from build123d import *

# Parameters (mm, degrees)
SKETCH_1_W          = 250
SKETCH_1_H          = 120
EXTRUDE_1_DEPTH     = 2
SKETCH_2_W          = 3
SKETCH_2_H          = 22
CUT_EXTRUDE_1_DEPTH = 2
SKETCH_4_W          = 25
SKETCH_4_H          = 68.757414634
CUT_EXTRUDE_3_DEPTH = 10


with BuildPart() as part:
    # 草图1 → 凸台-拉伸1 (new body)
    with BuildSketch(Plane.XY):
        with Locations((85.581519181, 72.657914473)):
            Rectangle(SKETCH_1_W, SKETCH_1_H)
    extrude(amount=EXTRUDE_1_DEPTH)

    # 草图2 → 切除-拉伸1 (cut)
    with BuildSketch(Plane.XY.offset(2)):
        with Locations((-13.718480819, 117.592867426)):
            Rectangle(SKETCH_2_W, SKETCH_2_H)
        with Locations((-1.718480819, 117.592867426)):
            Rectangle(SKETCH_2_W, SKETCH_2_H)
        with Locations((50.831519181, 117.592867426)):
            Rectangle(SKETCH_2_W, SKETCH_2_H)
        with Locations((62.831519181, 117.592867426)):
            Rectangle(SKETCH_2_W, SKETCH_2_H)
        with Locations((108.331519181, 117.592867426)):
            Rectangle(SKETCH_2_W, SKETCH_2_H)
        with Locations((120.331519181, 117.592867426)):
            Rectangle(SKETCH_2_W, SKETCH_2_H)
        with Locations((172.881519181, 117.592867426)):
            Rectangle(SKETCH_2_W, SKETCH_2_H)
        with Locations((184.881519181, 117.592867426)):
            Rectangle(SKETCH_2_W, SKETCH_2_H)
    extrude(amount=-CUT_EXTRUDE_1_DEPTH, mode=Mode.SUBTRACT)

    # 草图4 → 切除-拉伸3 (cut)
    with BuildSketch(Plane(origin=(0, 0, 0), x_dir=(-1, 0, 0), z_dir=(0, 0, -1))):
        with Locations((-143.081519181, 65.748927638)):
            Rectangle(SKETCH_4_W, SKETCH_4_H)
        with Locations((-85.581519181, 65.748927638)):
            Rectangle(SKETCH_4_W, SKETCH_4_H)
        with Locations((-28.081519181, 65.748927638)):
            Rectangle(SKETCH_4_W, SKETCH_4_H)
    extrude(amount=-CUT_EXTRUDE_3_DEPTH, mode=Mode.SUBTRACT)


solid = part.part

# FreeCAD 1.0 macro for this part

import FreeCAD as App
import Part
import Sketcher

V = App.Vector

doc = App.newDocument("Part")
params = doc.addObject("Spreadsheet::Sheet", "Params")
for row, (alias, value) in enumerate([
    ("sketch1_width", "250 mm"),
    ("sketch1_height", "120 mm"),
    ("pad1_length", "2 mm"),
    ("sketch2_width", "3 mm"),
    ("sketch2_height", "22 mm"),
    ("pocket1_length", "2 mm"),
    ("sketch3_width", "25 mm"),
    ("pocket2_length", "10 mm"),
], start=1):
    params.set(f"A{row}", alias)
    params.set(f"B{row}", "=" + value)
    params.setAlias(f"B{row}", alias)

body = doc.addObject("PartDesign::Body", "Body")

# Sketch on XY plane
sketch1 = body.newObject("Sketcher::SketchObject", "Sketch")
sketch1.AttachmentSupport = (doc.getObject("XY_Plane"), [""])
sketch1.MapMode = "FlatFace"
sketch1.addGeometry([
    Part.LineSegment(V(-39, 133, 0), V(-39, 13, 0)),
    Part.LineSegment(V(-39, 13, 0), V(211, 13, 0)),
    Part.LineSegment(V(211, 13, 0), V(211, 133, 0)),
    Part.LineSegment(V(211, 133, 0), V(-39, 133, 0)),
], False)
sketch1.addConstraint([
    Sketcher.Constraint("Coincident", 0, 2, 1, 1),
    Sketcher.Constraint("Coincident", 1, 2, 2, 1),
    Sketcher.Constraint("Coincident", 2, 2, 3, 1),
    Sketcher.Constraint("Coincident", 3, 2, 0, 1),
    Sketcher.Constraint("Vertical", 0),
    Sketcher.Constraint("Horizontal", 1),
    Sketcher.Constraint("Vertical", 2),
    Sketcher.Constraint("Horizontal", 3),
    Sketcher.Constraint("DistanceX", 1, 1, 1, 2, 250.0),
    Sketcher.Constraint("DistanceY", 0, 2, 0, 1, 120.0),
    Sketcher.Constraint("DistanceX", 0, 2, -1, 1, 39.418481),
    Sketcher.Constraint("DistanceY", -1, 1, 0, 2, 12.657914),
])
sketch1.setExpression("Constraints[8]", "Params.sketch1_width")
sketch1.setExpression("Constraints[9]", "Params.sketch1_height")
pad1 = body.newObject("PartDesign::Pad", "Pad")
pad1.Profile = sketch1
pad1.setExpression("Length", "Params.pad1_length")

# Sketch on XY plane
sketch2 = body.newObject("Sketcher::SketchObject", "Sketch001")
sketch2.AttachmentSupport = (doc.getObject("XY_Plane"), [""])
sketch2.MapMode = "FlatFace"
sketch2.AttachmentOffset = App.Placement(V(0, 0, 2), App.Rotation())
sketch2.addGeometry([
    Part.LineSegment(V(-15.2, 128.6, 0), V(-15.2, 106.6, 0)),  # 0
    Part.LineSegment(V(-15.2, 106.6, 0), V(-12.2, 106.6, 0)),  # 1
    Part.LineSegment(V(-12.2, 106.6, 0), V(-12.2, 128.6, 0)),  # 2
    Part.LineSegment(V(-12.2, 128.6, 0), V(-15.2, 128.6, 0)),  # 3
    Part.LineSegment(V(-3.2, 128.6, 0), V(-3.2, 106.6, 0)),  # 4
    Part.LineSegment(V(-3.2, 106.6, 0), V(-0.2, 106.6, 0)),  # 5
    Part.LineSegment(V(-0.2, 106.6, 0), V(-0.2, 128.6, 0)),  # 6
    Part.LineSegment(V(-0.2, 128.6, 0), V(-3.2, 128.6, 0)),  # 7
    Part.LineSegment(V(49.3, 128.6, 0), V(49.3, 106.6, 0)),  # 8
    Part.LineSegment(V(49.3, 106.6, 0), V(52.3, 106.6, 0)),  # 9
    Part.LineSegment(V(52.3, 106.6, 0), V(52.3, 128.6, 0)),  # 10
    Part.LineSegment(V(52.3, 128.6, 0), V(49.3, 128.6, 0)),  # 11
    Part.LineSegment(V(61.3, 128.6, 0), V(61.3, 106.6, 0)),  # 12
    Part.LineSegment(V(61.3, 106.6, 0), V(64.3, 106.6, 0)),  # 13
    Part.LineSegment(V(64.3, 106.6, 0), V(64.3, 128.6, 0)),  # 14
    Part.LineSegment(V(64.3, 128.6, 0), V(61.3, 128.6, 0)),  # 15
    Part.LineSegment(V(106.8, 128.6, 0), V(106.8, 106.6, 0)),  # 16
    Part.LineSegment(V(106.8, 106.6, 0), V(109.8, 106.6, 0)),  # 17
    Part.LineSegment(V(109.8, 106.6, 0), V(109.8, 128.6, 0)),  # 18
    Part.LineSegment(V(109.8, 128.6, 0), V(106.8, 128.6, 0)),  # 19
    Part.LineSegment(V(118.8, 128.6, 0), V(118.8, 106.6, 0)),  # 20
    Part.LineSegment(V(118.8, 106.6, 0), V(121.8, 106.6, 0)),  # 21
    Part.LineSegment(V(121.8, 106.6, 0), V(121.8, 128.6, 0)),  # 22
    Part.LineSegment(V(121.8, 128.6, 0), V(118.8, 128.6, 0)),  # 23
    Part.LineSegment(V(171.4, 128.6, 0), V(171.4, 106.6, 0)),  # 24
    Part.LineSegment(V(171.4, 106.6, 0), V(174.4, 106.6, 0)),  # 25
    Part.LineSegment(V(174.4, 106.6, 0), V(174.4, 128.6, 0)),  # 26
    Part.LineSegment(V(174.4, 128.6, 0), V(171.4, 128.6, 0)),  # 27
    Part.LineSegment(V(183.4, 128.6, 0), V(183.4, 106.6, 0)),  # 28
    Part.LineSegment(V(183.4, 106.6, 0), V(186.4, 106.6, 0)),  # 29
    Part.LineSegment(V(186.4, 106.6, 0), V(186.4, 128.6, 0)),  # 30
    Part.LineSegment(V(186.4, 128.6, 0), V(183.4, 128.6, 0)),  # 31
], False)
sketch2.addConstraint([
    Sketcher.Constraint("Coincident", 0, 2, 1, 1),
    Sketcher.Constraint("Coincident", 1, 2, 2, 1),
    Sketcher.Constraint("Coincident", 2, 2, 3, 1),
    Sketcher.Constraint("Coincident", 3, 2, 0, 1),
    Sketcher.Constraint("Coincident", 4, 2, 5, 1),
    Sketcher.Constraint("Coincident", 5, 2, 6, 1),
    Sketcher.Constraint("Coincident", 6, 2, 7, 1),
    Sketcher.Constraint("Coincident", 7, 2, 4, 1),
    Sketcher.Constraint("Coincident", 8, 2, 9, 1),
    Sketcher.Constraint("Coincident", 9, 2, 10, 1),
    Sketcher.Constraint("Coincident", 10, 2, 11, 1),
    Sketcher.Constraint("Coincident", 11, 2, 8, 1),
    Sketcher.Constraint("Coincident", 12, 2, 13, 1),
    Sketcher.Constraint("Coincident", 13, 2, 14, 1),
    Sketcher.Constraint("Coincident", 14, 2, 15, 1),
    Sketcher.Constraint("Coincident", 15, 2, 12, 1),
    Sketcher.Constraint("Coincident", 16, 2, 17, 1),
    Sketcher.Constraint("Coincident", 17, 2, 18, 1),
    Sketcher.Constraint("Coincident", 18, 2, 19, 1),
    Sketcher.Constraint("Coincident", 19, 2, 16, 1),
    Sketcher.Constraint("Coincident", 20, 2, 21, 1),
    Sketcher.Constraint("Coincident", 21, 2, 22, 1),
    Sketcher.Constraint("Coincident", 22, 2, 23, 1),
    Sketcher.Constraint("Coincident", 23, 2, 20, 1),
    Sketcher.Constraint("Coincident", 24, 2, 25, 1),
    Sketcher.Constraint("Coincident", 25, 2, 26, 1),
    Sketcher.Constraint("Coincident", 26, 2, 27, 1),
    Sketcher.Constraint("Coincident", 27, 2, 24, 1),
    Sketcher.Constraint("Coincident", 28, 2, 29, 1),
    Sketcher.Constraint("Coincident", 29, 2, 30, 1),
    Sketcher.Constraint("Coincident", 30, 2, 31, 1),
    Sketcher.Constraint("Coincident", 31, 2, 28, 1),
    Sketcher.Constraint("Vertical", 0),
    Sketcher.Constraint("Horizontal", 1),
    Sketcher.Constraint("Vertical", 2),
    Sketcher.Constraint("Horizontal", 3),
    Sketcher.Constraint("Vertical", 4),
    Sketcher.Constraint("Horizontal", 5),
    Sketcher.Constraint("Vertical", 6),
    Sketcher.Constraint("Horizontal", 7),
    Sketcher.Constraint("Vertical", 8),
    Sketcher.Constraint("Horizontal", 9),
    Sketcher.Constraint("Vertical", 10),
    Sketcher.Constraint("Horizontal", 11),
    Sketcher.Constraint("Vertical", 12),
    Sketcher.Constraint("Horizontal", 13),
    Sketcher.Constraint("Vertical", 14),
    Sketcher.Constraint("Horizontal", 15),
    Sketcher.Constraint("Vertical", 16),
    Sketcher.Constraint("Horizontal", 17),
    Sketcher.Constraint("Vertical", 18),
    Sketcher.Constraint("Horizontal", 19),
    Sketcher.Constraint("Vertical", 20),
    Sketcher.Constraint("Horizontal", 21),
    Sketcher.Constraint("Vertical", 22),
    Sketcher.Constraint("Horizontal", 23),
    Sketcher.Constraint("Vertical", 24),
    Sketcher.Constraint("Horizontal", 25),
    Sketcher.Constraint("Vertical", 26),
    Sketcher.Constraint("Horizontal", 27),
    Sketcher.Constraint("Vertical", 28),
    Sketcher.Constraint("Horizontal", 29),
    Sketcher.Constraint("Vertical", 30),
    Sketcher.Constraint("Horizontal", 31),
    Sketcher.Constraint("Horizontal", 1, 2, 4, 2),
    Sketcher.Constraint("Horizontal", 3, 2, 6, 2),
    Sketcher.Constraint("Horizontal", 5, 2, 8, 2),
    Sketcher.Constraint("Horizontal", 7, 2, 10, 2),
    Sketcher.Constraint("Horizontal", 9, 2, 12, 2),
    Sketcher.Constraint("Horizontal", 11, 2, 14, 2),
    Sketcher.Constraint("Horizontal", 13, 2, 16, 2),
    Sketcher.Constraint("Horizontal", 15, 2, 18, 2),
    Sketcher.Constraint("Horizontal", 17, 2, 20, 2),
    Sketcher.Constraint("Horizontal", 19, 2, 22, 2),
    Sketcher.Constraint("Horizontal", 21, 2, 24, 2),
    Sketcher.Constraint("Horizontal", 23, 2, 26, 2),
    Sketcher.Constraint("Horizontal", 25, 2, 28, 2),
    Sketcher.Constraint("Horizontal", 27, 2, 30, 2),
    Sketcher.Constraint("Equal", 3, 5),
    Sketcher.Constraint("Equal", 7, 9),
    Sketcher.Constraint("Equal", 11, 13),
    Sketcher.Constraint("Equal", 15, 17),
    Sketcher.Constraint("Equal", 19, 21),
    Sketcher.Constraint("Equal", 23, 25),
    Sketcher.Constraint("Equal", 27, 29),
    Sketcher.Constraint("DistanceX", 1, 1, 1, 2, 3.0),
    Sketcher.Constraint("DistanceY", 0, 2, 0, 1, 22.0),
    Sketcher.Constraint("DistanceX", 1, 2, 4, 2, 9.0),
    Sketcher.Constraint("DistanceX", 9, 2, 12, 2, 9.0),
    Sketcher.Constraint("DistanceX", 17, 2, 20, 2, 9.0),
    Sketcher.Constraint("DistanceX", 25, 2, 28, 2, 9.0),
    Sketcher.Constraint("DistanceX", 13, 2, 16, 2, 42.5),
    Sketcher.Constraint("DistanceX", 5, 2, 8, 2, 49.55),
    Sketcher.Constraint("DistanceX", 21, 2, 24, 2, 49.55),
    Sketcher.Constraint("DistanceX", 0, 2, -1, 1, 15.218481),
    Sketcher.Constraint("DistanceY", -1, 1, 0, 2, 106.592867),
])
sketch2.setExpression("Constraints[85]", "Params.sketch2_width")
sketch2.setExpression("Constraints[86]", "Params.sketch2_height")
pocket1 = body.newObject("PartDesign::Pocket", "Pocket")
pocket1.Profile = sketch2
pocket1.setExpression("Length", "Params.pocket1_length")

# Sketch on XY plane
sketch3 = body.newObject("Sketcher::SketchObject", "Sketch002")
sketch3.AttachmentSupport = (doc.getObject("XY_Plane"), [""])
sketch3.MapMode = "FlatFace"
sketch3.addGeometry([
    Part.LineSegment(V(156, 100, 0), V(156, 31, 0)),  # 0
    Part.LineSegment(V(156, 31, 0), V(131, 31, 0)),  # 1
    Part.LineSegment(V(131, 31, 0), V(131, 100, 0)),  # 2
    Part.LineSegment(V(131, 100, 0), V(156, 100, 0)),  # 3
    Part.LineSegment(V(98, 100, 0), V(98, 31, 0)),  # 4
    Part.LineSegment(V(98, 31, 0), V(73, 31, 0)),  # 5
    Part.LineSegment(V(73, 31, 0), V(73, 100, 0)),  # 6
    Part.LineSegment(V(73, 100, 0), V(98, 100, 0)),  # 7
    Part.LineSegment(V(41, 100, 0), V(41, 31, 0)),  # 8
    Part.LineSegment(V(41, 31, 0), V(16, 31, 0)),  # 9
    Part.LineSegment(V(16, 31, 0), V(16, 100, 0)),  # 10
    Part.LineSegment(V(16, 100, 0), V(41, 100, 0)),  # 11
], False)
sketch3.addConstraint([
    Sketcher.Constraint("Coincident", 0, 2, 1, 1),
    Sketcher.Constraint("Coincident", 1, 2, 2, 1),
    Sketcher.Constraint("Coincident", 2, 2, 3, 1),
    Sketcher.Constraint("Coincident", 3, 2, 0, 1),
    Sketcher.Constraint("Coincident", 4, 2, 5, 1),
    Sketcher.Constraint("Coincident", 5, 2, 6, 1),
    Sketcher.Constraint("Coincident", 6, 2, 7, 1),
    Sketcher.Constraint("Coincident", 7, 2, 4, 1),
    Sketcher.Constraint("Coincident", 8, 2, 9, 1),
    Sketcher.Constraint("Coincident", 9, 2, 10, 1),
    Sketcher.Constraint("Coincident", 10, 2, 11, 1),
    Sketcher.Constraint("Coincident", 11, 2, 8, 1),
    Sketcher.Constraint("Vertical", 0),
    Sketcher.Constraint("Horizontal", 1),
    Sketcher.Constraint("Vertical", 2),
    Sketcher.Constraint("Horizontal", 3),
    Sketcher.Constraint("Vertical", 4),
    Sketcher.Constraint("Horizontal", 5),
    Sketcher.Constraint("Vertical", 6),
    Sketcher.Constraint("Horizontal", 7),
    Sketcher.Constraint("Vertical", 8),
    Sketcher.Constraint("Horizontal", 9),
    Sketcher.Constraint("Vertical", 10),
    Sketcher.Constraint("Horizontal", 11),
    Sketcher.Constraint("Horizontal", 1, 2, 4, 2),
    Sketcher.Constraint("Horizontal", 3, 2, 6, 2),
    Sketcher.Constraint("Horizontal", 5, 2, 8, 2),
    Sketcher.Constraint("Horizontal", 7, 2, 10, 2),
    Sketcher.Constraint("Equal", 3, 5),
    Sketcher.Constraint("Equal", 7, 9),
    Sketcher.Constraint("DistanceX", 1, 2, 1, 1, 25.0),
    Sketcher.Constraint("DistanceX", 8, 2, 1, 2, 90.0),
    Sketcher.Constraint("DistanceX", 4, 2, 1, 2, 32.5),
    Sketcher.Constraint("DistanceY", 0, 2, 0, 1, 68.757415),
    Sketcher.Constraint("DistanceX", -1, 1, 0, 2, 155.581519),
    Sketcher.Constraint("DistanceY", -1, 1, 0, 2, 31.37022),
])
sketch3.setExpression("Constraints[30]", "Params.sketch3_width")
pocket2 = body.newObject("PartDesign::Pocket", "Pocket001")
pocket2.Profile = sketch3
pocket2.setExpression("Length", "Params.pocket2_length")
pocket2.Reversed = True

doc.recompute()
